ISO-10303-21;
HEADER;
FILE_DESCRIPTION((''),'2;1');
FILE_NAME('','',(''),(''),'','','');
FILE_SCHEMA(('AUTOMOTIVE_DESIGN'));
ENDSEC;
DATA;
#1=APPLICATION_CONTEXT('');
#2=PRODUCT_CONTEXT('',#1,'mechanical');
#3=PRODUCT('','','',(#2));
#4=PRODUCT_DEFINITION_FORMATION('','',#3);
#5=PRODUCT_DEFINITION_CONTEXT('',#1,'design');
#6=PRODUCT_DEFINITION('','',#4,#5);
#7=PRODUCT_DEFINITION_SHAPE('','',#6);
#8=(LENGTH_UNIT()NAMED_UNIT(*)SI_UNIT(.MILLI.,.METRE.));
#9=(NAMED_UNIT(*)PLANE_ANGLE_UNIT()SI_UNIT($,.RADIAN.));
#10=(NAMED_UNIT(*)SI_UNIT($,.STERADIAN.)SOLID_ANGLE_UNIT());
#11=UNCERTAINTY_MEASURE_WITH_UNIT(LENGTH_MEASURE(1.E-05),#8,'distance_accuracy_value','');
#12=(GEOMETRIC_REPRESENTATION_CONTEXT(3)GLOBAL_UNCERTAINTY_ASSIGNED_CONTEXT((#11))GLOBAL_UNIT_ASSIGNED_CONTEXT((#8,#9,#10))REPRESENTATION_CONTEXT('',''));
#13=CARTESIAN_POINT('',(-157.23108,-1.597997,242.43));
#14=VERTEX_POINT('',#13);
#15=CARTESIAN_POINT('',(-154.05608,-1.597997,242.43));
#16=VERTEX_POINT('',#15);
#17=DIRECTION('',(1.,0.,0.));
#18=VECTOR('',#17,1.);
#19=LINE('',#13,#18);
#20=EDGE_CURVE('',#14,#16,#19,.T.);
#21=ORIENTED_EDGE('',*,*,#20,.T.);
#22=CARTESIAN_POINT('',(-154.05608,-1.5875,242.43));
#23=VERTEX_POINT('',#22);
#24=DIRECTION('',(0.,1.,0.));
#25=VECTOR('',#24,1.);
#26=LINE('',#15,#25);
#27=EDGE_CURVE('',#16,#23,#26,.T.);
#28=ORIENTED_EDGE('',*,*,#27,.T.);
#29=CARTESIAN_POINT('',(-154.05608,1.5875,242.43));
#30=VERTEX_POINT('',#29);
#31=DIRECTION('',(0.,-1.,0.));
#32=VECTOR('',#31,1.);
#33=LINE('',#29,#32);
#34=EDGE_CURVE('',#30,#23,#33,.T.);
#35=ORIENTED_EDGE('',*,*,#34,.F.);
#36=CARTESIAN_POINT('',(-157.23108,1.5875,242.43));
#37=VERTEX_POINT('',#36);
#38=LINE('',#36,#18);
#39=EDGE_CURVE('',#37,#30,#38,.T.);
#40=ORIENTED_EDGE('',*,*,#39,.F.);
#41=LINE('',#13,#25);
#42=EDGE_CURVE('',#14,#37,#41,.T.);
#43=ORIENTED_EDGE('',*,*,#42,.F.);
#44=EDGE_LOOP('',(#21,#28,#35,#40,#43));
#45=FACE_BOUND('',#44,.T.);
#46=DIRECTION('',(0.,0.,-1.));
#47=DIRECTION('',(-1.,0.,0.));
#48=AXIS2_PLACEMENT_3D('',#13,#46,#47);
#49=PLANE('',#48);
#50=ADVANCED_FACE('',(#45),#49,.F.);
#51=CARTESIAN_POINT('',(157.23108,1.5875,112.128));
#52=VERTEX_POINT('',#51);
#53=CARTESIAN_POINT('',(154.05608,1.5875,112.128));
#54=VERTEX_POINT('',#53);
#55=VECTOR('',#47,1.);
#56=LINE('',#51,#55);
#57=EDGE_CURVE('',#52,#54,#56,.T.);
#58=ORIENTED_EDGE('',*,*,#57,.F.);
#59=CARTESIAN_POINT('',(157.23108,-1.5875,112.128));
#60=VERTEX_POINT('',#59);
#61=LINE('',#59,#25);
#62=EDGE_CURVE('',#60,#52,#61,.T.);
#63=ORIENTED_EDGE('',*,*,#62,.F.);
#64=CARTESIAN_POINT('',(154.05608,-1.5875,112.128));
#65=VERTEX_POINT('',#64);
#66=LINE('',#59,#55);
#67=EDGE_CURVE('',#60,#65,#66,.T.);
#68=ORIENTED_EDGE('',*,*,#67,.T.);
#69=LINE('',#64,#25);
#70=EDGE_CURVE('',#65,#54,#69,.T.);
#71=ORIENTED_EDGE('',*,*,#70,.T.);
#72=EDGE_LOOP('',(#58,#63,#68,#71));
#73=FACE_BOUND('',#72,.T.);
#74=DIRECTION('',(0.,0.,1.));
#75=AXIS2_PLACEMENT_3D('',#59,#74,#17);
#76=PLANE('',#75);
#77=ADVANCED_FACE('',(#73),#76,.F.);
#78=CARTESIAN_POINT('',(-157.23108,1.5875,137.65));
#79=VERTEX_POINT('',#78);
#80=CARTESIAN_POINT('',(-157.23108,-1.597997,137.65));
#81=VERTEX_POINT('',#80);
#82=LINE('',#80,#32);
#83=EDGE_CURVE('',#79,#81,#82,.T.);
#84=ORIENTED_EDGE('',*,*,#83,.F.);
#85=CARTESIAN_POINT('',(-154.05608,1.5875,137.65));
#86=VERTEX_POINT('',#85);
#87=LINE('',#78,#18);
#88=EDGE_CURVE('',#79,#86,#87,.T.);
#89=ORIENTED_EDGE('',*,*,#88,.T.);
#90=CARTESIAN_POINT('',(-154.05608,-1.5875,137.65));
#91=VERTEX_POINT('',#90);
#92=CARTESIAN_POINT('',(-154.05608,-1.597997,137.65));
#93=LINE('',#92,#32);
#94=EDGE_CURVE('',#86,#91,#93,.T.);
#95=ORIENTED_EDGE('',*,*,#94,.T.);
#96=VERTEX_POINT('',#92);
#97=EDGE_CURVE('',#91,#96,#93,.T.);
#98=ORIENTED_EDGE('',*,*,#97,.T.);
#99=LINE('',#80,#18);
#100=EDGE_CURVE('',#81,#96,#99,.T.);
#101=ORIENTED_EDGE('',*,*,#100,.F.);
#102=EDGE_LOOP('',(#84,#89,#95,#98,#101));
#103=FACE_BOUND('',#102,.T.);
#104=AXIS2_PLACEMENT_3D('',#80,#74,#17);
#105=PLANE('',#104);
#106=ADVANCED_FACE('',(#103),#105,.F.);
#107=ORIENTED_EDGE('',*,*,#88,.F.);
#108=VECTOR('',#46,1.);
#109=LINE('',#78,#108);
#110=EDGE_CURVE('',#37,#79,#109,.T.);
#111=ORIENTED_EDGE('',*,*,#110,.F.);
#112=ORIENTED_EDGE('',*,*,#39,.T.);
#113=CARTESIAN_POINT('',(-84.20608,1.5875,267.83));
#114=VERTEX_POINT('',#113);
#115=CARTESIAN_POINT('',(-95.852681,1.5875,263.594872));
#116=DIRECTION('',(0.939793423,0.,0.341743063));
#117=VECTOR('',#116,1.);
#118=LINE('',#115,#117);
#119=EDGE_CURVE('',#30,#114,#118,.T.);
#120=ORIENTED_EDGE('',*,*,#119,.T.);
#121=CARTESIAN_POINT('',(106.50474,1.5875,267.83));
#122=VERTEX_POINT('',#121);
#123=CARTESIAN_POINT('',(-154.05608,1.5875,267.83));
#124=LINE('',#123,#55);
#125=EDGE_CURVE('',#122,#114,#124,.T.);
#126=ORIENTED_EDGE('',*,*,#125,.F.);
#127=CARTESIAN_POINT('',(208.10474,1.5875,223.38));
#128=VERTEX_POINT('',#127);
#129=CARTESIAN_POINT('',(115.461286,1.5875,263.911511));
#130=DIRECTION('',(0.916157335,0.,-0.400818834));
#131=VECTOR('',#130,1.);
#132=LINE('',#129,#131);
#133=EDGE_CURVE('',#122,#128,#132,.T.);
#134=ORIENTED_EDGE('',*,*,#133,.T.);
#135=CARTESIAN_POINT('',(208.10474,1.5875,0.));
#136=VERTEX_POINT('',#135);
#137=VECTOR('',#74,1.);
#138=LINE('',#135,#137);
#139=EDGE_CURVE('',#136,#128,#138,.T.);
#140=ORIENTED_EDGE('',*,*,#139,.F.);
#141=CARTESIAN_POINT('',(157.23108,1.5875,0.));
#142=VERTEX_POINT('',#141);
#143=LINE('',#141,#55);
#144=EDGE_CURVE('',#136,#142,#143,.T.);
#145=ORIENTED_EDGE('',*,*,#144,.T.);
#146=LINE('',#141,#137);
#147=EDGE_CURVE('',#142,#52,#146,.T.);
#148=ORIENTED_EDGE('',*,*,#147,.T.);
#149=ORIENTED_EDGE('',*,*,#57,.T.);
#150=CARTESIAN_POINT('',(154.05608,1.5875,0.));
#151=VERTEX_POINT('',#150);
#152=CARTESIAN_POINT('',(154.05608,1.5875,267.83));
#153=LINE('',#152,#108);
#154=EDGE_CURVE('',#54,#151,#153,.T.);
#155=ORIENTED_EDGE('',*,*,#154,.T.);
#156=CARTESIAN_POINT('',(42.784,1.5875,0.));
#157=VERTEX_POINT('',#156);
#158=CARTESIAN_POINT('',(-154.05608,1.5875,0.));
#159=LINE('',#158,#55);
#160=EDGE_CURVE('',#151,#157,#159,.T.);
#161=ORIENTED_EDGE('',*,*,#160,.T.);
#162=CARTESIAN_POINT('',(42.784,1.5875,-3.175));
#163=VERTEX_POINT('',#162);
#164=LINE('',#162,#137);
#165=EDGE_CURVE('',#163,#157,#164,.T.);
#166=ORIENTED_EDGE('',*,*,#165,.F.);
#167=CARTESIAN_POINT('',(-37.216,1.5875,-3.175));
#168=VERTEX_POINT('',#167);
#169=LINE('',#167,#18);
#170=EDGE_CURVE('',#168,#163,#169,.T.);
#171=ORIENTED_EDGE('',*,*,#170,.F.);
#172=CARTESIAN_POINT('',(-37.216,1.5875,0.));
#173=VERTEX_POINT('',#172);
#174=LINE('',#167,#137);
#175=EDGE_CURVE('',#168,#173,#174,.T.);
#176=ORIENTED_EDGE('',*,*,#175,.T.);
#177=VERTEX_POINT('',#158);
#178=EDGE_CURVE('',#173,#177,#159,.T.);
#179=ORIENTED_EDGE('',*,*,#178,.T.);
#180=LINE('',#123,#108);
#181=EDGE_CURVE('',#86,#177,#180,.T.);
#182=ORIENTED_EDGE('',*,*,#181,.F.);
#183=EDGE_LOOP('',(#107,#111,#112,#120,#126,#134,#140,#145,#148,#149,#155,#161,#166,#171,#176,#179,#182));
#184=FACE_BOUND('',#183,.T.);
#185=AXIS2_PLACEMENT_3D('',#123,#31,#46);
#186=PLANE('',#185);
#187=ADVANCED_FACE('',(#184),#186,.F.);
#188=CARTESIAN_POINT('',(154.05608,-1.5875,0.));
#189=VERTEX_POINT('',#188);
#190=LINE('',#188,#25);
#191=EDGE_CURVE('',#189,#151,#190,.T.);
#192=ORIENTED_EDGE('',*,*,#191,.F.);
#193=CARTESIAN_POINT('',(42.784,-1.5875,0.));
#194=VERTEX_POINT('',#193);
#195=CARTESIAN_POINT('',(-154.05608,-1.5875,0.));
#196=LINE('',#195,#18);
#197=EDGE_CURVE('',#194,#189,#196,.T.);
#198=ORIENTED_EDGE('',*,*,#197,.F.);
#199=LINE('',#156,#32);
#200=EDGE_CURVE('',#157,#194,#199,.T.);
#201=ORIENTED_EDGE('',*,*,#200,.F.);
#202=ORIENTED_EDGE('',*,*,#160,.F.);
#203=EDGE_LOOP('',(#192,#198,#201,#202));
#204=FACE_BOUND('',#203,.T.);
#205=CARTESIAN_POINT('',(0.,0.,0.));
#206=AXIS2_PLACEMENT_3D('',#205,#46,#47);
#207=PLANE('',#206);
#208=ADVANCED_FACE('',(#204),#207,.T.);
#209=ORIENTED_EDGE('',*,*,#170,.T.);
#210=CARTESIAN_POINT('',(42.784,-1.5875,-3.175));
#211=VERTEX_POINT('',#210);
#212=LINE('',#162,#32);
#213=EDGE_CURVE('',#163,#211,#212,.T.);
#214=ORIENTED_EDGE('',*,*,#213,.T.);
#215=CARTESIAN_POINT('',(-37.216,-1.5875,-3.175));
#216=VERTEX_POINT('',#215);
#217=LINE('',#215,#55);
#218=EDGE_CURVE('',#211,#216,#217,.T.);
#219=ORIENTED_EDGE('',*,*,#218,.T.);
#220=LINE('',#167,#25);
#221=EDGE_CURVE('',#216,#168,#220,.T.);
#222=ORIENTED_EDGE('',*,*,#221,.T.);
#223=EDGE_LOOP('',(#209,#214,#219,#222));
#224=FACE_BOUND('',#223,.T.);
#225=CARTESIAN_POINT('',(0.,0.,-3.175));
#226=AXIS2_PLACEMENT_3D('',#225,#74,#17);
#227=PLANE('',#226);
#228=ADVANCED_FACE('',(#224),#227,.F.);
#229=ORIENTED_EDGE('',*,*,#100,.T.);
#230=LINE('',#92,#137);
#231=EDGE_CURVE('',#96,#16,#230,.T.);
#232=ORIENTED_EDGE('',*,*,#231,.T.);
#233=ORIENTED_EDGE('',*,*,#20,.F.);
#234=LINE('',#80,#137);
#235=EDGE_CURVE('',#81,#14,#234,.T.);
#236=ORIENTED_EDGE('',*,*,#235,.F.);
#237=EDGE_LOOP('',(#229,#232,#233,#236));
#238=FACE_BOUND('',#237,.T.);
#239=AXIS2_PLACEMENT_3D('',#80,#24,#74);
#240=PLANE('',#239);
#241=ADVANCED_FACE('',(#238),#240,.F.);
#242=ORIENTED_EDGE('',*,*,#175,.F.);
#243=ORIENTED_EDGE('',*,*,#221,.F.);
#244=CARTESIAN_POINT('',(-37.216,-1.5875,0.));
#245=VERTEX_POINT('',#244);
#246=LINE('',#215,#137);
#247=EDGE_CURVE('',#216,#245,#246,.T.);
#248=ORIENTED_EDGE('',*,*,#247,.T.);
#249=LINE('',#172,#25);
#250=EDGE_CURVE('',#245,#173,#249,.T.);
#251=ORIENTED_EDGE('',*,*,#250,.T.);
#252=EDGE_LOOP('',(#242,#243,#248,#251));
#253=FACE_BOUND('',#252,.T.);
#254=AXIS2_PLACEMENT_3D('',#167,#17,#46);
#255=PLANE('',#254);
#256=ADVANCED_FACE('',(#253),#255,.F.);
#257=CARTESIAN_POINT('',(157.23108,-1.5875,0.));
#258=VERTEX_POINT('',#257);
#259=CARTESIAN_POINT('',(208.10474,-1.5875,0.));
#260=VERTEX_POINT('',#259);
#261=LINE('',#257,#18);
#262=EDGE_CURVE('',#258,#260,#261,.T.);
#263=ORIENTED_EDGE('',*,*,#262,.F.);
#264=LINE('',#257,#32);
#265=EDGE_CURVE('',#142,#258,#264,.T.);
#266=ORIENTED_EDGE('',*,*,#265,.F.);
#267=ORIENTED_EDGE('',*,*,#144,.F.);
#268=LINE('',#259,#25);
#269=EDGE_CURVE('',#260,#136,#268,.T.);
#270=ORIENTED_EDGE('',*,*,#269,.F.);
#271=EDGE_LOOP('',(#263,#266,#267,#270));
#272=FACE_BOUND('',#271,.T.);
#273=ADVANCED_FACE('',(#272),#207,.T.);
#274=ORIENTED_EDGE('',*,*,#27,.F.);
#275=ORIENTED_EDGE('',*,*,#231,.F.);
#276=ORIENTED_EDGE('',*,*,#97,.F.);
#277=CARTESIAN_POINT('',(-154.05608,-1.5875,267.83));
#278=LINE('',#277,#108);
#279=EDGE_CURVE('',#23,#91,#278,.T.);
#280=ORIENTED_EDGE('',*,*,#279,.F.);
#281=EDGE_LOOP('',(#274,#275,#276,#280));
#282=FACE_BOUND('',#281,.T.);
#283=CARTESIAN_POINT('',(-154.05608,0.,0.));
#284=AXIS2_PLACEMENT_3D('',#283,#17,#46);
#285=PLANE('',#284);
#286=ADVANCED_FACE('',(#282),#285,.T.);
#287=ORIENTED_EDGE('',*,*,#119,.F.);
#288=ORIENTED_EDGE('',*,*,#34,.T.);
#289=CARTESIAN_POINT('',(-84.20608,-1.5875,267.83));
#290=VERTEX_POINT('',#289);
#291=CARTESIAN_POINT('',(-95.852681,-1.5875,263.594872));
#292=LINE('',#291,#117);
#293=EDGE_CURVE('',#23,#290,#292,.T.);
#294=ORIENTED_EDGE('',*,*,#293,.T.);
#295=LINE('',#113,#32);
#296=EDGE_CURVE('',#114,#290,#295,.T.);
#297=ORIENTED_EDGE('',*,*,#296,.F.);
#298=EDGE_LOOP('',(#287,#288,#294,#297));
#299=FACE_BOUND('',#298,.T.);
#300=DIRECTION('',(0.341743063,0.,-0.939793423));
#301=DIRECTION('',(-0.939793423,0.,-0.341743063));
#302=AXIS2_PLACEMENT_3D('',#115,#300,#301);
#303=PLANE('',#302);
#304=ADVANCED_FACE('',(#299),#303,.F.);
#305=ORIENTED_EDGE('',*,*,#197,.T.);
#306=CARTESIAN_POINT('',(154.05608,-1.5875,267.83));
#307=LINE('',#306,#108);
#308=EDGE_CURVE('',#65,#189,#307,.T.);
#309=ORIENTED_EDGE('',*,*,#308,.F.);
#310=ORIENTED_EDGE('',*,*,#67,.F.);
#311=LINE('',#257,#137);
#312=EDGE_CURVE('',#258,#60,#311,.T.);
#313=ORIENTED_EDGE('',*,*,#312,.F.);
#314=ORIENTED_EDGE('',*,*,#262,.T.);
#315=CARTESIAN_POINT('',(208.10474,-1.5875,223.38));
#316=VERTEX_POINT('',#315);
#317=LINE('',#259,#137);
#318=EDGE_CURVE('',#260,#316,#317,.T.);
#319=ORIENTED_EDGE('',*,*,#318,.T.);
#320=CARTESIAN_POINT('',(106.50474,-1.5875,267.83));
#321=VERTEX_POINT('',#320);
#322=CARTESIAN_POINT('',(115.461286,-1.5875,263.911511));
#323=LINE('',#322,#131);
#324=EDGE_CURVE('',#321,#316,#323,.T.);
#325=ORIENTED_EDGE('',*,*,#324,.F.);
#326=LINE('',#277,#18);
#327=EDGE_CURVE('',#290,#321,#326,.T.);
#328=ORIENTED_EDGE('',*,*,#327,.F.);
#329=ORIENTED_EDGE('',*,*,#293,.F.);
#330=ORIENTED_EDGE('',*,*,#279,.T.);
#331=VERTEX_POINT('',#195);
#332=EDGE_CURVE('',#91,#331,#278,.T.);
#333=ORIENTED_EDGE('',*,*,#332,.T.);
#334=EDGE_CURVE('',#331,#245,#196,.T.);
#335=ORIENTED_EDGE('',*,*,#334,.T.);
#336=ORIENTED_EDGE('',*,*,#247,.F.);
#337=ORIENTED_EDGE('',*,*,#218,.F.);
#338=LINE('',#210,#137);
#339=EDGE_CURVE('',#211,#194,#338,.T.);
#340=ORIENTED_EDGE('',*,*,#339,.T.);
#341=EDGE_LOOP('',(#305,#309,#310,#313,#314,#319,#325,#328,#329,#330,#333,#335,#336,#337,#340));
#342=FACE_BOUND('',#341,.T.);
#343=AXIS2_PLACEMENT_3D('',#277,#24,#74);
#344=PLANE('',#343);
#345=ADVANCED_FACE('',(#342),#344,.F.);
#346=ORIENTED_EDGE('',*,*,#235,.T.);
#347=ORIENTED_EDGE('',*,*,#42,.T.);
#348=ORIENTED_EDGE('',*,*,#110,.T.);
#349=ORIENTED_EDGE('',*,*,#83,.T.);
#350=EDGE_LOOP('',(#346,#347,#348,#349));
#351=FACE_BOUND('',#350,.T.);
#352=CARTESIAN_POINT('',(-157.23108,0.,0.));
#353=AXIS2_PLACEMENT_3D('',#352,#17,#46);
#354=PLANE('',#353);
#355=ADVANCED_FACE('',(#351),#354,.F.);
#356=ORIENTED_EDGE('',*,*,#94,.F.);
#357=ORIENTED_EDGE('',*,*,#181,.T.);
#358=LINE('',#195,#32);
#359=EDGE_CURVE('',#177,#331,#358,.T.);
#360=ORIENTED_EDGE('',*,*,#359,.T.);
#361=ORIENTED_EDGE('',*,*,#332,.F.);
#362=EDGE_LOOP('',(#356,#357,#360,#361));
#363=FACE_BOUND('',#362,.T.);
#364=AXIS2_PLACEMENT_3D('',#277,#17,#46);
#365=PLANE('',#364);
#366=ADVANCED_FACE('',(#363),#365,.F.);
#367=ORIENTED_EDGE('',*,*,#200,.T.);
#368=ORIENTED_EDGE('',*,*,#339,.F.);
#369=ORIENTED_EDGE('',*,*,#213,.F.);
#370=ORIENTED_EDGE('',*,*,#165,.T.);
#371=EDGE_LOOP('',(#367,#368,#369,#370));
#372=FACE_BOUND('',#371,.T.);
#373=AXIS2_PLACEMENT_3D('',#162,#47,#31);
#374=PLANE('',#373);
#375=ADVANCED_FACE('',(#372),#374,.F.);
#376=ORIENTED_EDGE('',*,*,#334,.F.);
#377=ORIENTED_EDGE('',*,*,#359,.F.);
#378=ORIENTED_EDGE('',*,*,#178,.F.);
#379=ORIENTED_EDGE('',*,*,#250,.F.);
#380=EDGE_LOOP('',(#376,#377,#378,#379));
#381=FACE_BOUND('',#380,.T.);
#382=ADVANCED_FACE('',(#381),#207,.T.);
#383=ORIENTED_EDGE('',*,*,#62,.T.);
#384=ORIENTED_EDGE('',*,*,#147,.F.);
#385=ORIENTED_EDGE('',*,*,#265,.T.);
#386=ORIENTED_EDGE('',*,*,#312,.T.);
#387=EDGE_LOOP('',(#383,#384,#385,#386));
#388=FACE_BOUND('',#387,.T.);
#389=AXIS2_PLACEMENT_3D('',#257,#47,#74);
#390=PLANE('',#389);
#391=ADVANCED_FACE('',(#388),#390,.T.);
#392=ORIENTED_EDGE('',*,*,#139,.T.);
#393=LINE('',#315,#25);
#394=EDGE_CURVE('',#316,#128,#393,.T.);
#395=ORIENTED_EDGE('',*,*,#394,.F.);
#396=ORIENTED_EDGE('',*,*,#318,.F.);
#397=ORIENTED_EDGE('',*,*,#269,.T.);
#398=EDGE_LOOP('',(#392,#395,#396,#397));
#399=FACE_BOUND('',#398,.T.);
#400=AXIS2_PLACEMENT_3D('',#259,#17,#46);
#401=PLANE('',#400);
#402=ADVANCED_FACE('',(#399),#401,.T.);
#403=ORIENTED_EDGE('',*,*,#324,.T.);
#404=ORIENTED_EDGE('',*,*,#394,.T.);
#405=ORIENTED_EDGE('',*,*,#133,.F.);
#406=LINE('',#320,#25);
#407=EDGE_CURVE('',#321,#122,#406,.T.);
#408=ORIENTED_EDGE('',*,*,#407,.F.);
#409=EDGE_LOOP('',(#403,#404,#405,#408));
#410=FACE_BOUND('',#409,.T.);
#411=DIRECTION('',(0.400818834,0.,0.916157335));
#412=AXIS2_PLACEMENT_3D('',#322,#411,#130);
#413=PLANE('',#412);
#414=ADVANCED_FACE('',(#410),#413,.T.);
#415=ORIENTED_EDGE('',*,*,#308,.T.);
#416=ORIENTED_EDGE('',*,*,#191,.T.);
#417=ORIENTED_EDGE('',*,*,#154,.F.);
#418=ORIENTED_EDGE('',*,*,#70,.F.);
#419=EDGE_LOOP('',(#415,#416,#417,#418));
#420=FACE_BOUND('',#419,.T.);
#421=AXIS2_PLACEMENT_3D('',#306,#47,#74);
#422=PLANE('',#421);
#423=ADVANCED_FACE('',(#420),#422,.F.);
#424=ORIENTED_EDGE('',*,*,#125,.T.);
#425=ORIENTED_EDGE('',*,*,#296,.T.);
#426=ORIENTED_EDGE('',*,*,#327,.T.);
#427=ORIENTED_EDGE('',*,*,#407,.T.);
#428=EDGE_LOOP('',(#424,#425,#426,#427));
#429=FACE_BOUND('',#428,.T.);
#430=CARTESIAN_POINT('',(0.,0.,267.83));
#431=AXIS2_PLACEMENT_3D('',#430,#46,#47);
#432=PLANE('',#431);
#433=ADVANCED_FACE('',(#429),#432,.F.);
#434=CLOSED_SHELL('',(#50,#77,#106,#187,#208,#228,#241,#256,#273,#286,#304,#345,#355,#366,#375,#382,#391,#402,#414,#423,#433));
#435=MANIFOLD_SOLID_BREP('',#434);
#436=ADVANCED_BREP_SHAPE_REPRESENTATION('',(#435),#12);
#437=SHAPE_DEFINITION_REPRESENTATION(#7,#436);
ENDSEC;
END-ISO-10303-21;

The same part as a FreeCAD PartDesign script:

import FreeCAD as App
import Part
import Sketcher

V = App.Vector
Q = App.Units.Quantity


def add_polygon(sketch, points):
    """Adds a closed chain of lines whose ends are joined by coincident constraints."""
    first, n = sketch.GeometryCount, len(points)
    for a, b in zip(points, points[1:] + points[:1]):
        sketch.addGeometry(Part.LineSegment(App.Vector(*a, 0), App.Vector(*b, 0)), False)
    for i in range(n):
        sketch.addConstraint(Sketcher.Constraint("Coincident", first + i, 2, first + (i + 1) % n, 1))

doc = App.newDocument("Part")
body = doc.addObject("PartDesign::Body", "Body")

sketch1 = body.newObject("Sketcher::SketchObject", "Sketch")
sketch1.AttachmentSupport = (doc.getObject("XY_Plane"), [""])
sketch1.MapMode = "FlatFace"
add_polygon(sketch1, [(-154.1, 1.6), (-154.1, -1.6), (154.1, -1.6), (154.1, 1.6)])
sketch1.addConstraint([
    Sketcher.Constraint("Vertical", 0),
    Sketcher.Constraint("Horizontal", 1),
    Sketcher.Constraint("Vertical", 2),
    Sketcher.Constraint("Horizontal", 3),
    Sketcher.Constraint("Symmetric", 0, 2, 2, 2, -1, 1),
    Sketcher.Constraint("DistanceY", 0, 2, 0, 1, Q("0.125 in")),
    Sketcher.Constraint("DistanceX", 1, 1, 1, 2, Q("12.1304 in")),
])
pad1 = body.newObject("PartDesign::Pad", "Pad")
pad1.Profile = sketch1
pad1.Length = 267.83

sketch2 = body.newObject("Sketcher::SketchObject", "Sketch001")
sketch2.AttachmentSupport = (doc.getObject("YZ_Plane"), [""])
sketch2.MapMode = "FlatFace"
sketch2.AttachmentOffset = App.Placement(V(0, 0, 6.0652 * 25.4), App.Rotation())
add_polygon(sketch2, [(1.6, 267.8), (-1.6, 267.8), (-1.6, 112.1), (1.6, 112.1)])
sketch2.addConstraint([
    Sketcher.Constraint("Horizontal", 0),
    Sketcher.Constraint("Vertical", 1),
    Sketcher.Constraint("Horizontal", 2),
    Sketcher.Constraint("Vertical", 3),
    Sketcher.Constraint("DistanceY", 1, 2, 1, 1, Q("6.13 in")),
    Sketcher.Constraint("DistanceX", 0, 2, 0, 1, Q("0.125 in")),
    Sketcher.Constraint("DistanceX", 0, 2, -1, 1, Q("0.0625 in")),
    Sketcher.Constraint("DistanceY", -1, 1, 0, 2, Q("267.83 mm")),
])
pad2 = body.newObject("PartDesign::Pad", "Pad001")
pad2.Profile = sketch2
pad2.Length = Q("0.125 in")

sketch3 = body.newObject("Sketcher::SketchObject", "Sketch002")
sketch3.AttachmentSupport = (doc.getObject("XY_Plane"), [""])
sketch3.MapMode = "FlatFace"
sketch3.AttachmentOffset = App.Placement(V(0, 0, 267.83), App.Rotation())
add_polygon(sketch3, [(157.2, 1.6), (157.2, -1.6), (208.1, -1.6), (208.1, 1.6)])
sketch3.addConstraint([
    Sketcher.Constraint("Vertical", 0),
    Sketcher.Constraint("Horizontal", 1),
    Sketcher.Constraint("Vertical", 2),
    Sketcher.Constraint("Horizontal", 3),
    Sketcher.Constraint("DistanceY", 0, 2, 0, 1, Q("0.125 in")),
    Sketcher.Constraint("DistanceX", 1, 1, 1, 2, Q("2.0029 in")),
    Sketcher.Constraint("DistanceY", 0, 2, -1, 1, Q("0.0625 in")),
    Sketcher.Constraint("DistanceX", -1, 1, 0, 2, Q("6.1902 in")),
])
pad3 = body.newObject("PartDesign::Pad", "Pad002")
pad3.Profile = sketch3
pad3.Length = 267.83
pad3.Reversed = True

sketch4 = body.newObject("Sketcher::SketchObject", "Sketch003")
sketch4.AttachmentSupport = (doc.getObject("XZ_Plane"), [""])
sketch4.MapMode = "FlatFace"
sketch4.AttachmentOffset = App.Placement(V(0, 0, -0.0625 * 25.4), App.Rotation())
add_polygon(sketch4, [(208, 223), (107, 268), (208, 268)])
sketch4.addConstraint([
    Sketcher.Constraint("Horizontal", 1),
    Sketcher.Constraint("Vertical", 2),
    Sketcher.Constraint("DistanceX", 1, 1, 1, 2, Q("4 in")),
    Sketcher.Constraint("DistanceY", 2, 2, 2, 1, Q("1.75 in")),
    Sketcher.Constraint("DistanceX", -1, 1, 0, 2, Q("4.1931 in")),
    Sketcher.Constraint("DistanceY", -1, 1, 0, 2, Q("267.83 mm")),
])
pocket1 = body.newObject("PartDesign::Pocket", "Pocket")
pocket1.Profile = sketch4
pocket1.Type = "ThroughAll"
pocket1.Reversed = True

sketch5 = body.newObject("Sketcher::SketchObject", "Sketch004")
sketch5.AttachmentSupport = (doc.getObject("XY_Plane"), [""])
sketch5.MapMode = "FlatFace"
add_polygon(sketch5, [(42.8, 1.6), (42.8, -1.6), (-37.2, -1.6), (-37.2, 1.6)])
sketch5.addConstraint([
    Sketcher.Constraint("Vertical", 0),
    Sketcher.Constraint("Horizontal", 1),
    Sketcher.Constraint("Vertical", 2),
    Sketcher.Constraint("Horizontal", 3),
    Sketcher.Constraint("DistanceY", 0, 2, 0, 1, Q("0.125 in")),
    Sketcher.Constraint("DistanceY", 0, 2, -1, 1, Q("0.0625 in")),
    Sketcher.Constraint("DistanceX", 1, 2, 1, 1, Q("80 mm")),
    Sketcher.Constraint("DistanceX", -1, 1, 0, 2, Q("42.784 mm")),
])
pad4 = body.newObject("PartDesign::Pad", "Pad003")
pad4.Profile = sketch5
pad4.Length = Q("0.125 in")
pad4.Reversed = True

sketch6 = body.newObject("Sketcher::SketchObject", "Sketch005")
sketch6.AttachmentSupport = (doc.getObject("XZ_Plane"), [""])
sketch6.MapMode = "FlatFace"
sketch6.AttachmentOffset = App.Placement(V(0, 0, 0.0625 * 25.4), App.Rotation())
add_polygon(sketch6, [(-154, 242), (-84, 268), (-154, 268)])
sketch6.addConstraint([
    Sketcher.Constraint("Horizontal", 1),
    Sketcher.Constraint("Vertical", 2),
    Sketcher.Constraint("DistanceY", 2, 2, 2, 1, Q("1 in")),
    Sketcher.Constraint("DistanceX", 1, 2, 1, 1, Q("2.75 in")),
    Sketcher.Constraint("DistanceX", 0, 2, -1, 1, Q("3.3152 in")),
    Sketcher.Constraint("DistanceY", -1, 1, 0, 2, Q("267.83 mm")),
])
pocket2 = body.newObject("PartDesign::Pocket", "Pocket001")
pocket2.Profile = sketch6
pocket2.Type = "ThroughAll"

sketch7 = body.newObject("Sketcher::SketchObject", "Sketch006")
sketch7.AttachmentSupport = (doc.getObject("YZ_Plane"), [""])
sketch7.MapMode = "FlatFace"
sketch7.AttachmentOffset = App.Placement(V(0, 0, -6.0652 * 25.4), App.Rotation())
add_polygon(sketch7, [(1.6, 137.7), (-1.6, 137.7), (-1.6, 242.4), (1.6, 242.4)])
sketch7.addConstraint([
    Sketcher.Constraint("Horizontal", 0),
    Sketcher.Constraint("Vertical", 1),
    Sketcher.Constraint("Horizontal", 2),
    Sketcher.Constraint("Vertical", 3),
    Sketcher.Constraint("DistanceX", -1, 1, 2, 2, Q("0.0625 in")),
    Sketcher.Constraint("DistanceY", 1, 1, 1, 2, Q("104.78 mm")),
    Sketcher.Constraint("DistanceY", -1, 1, 0, 2, Q("137.65 mm")),
    Sketcher.Constraint("DistanceX", 0, 2, 0, 1, Q("3.185497 mm")),
])
pad5 = body.newObject("PartDesign::Pad", "Pad004")
pad5.Profile = sketch7
pad5.Length = Q("0.125 in")
pad5.Reversed = True

doc.recompute()
